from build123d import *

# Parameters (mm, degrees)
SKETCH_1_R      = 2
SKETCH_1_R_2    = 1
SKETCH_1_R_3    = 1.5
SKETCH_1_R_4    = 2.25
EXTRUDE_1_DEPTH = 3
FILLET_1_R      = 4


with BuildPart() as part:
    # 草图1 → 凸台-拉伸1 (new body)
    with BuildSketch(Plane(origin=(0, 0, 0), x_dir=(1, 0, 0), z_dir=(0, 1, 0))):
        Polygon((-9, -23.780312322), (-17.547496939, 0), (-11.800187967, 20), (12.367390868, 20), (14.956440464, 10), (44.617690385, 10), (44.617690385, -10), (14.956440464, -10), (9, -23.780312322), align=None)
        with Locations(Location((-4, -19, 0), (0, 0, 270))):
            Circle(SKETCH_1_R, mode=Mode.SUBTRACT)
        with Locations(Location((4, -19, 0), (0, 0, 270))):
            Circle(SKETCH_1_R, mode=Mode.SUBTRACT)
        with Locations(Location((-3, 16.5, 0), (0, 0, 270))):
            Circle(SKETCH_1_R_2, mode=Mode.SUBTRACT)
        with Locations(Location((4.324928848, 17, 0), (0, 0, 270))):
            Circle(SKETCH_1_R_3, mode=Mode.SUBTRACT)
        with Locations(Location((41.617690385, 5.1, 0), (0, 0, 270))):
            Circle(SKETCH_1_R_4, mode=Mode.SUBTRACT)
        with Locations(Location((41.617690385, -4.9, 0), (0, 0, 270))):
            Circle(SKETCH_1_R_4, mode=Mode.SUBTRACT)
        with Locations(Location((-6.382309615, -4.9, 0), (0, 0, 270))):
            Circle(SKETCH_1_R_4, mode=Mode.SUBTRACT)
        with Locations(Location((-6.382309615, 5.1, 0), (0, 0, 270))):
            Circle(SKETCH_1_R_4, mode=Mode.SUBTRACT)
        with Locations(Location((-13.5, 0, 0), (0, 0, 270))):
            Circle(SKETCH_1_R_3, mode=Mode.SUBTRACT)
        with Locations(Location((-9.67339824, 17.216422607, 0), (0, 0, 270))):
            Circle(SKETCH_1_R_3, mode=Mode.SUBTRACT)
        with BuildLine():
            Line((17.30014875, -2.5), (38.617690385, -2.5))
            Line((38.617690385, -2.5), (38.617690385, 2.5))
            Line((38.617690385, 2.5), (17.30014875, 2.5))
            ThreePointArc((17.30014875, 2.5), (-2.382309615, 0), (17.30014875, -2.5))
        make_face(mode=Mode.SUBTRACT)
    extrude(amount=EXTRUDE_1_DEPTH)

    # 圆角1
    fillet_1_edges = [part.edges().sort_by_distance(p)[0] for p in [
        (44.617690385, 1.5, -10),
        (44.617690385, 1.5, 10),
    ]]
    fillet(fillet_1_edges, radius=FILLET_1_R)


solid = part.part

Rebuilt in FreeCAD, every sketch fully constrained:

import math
import FreeCAD as App
import Part
import Sketcher
from FreeCAD import Vector


def edges_at(feature, points):
    """Names of the edges that pass closest to the given points."""
    edges = feature.Shape.Edges
    near = lambda p: min(range(len(edges)), key=lambda i: edges[i].distToShape(Part.Vertex(*p))[0])
    return sorted({f"Edge{near(p) + 1}" for p in points})


def add_polygon(sketch, points):
    """Adds a closed chain of lines whose ends are joined by coincident constraints."""
    first, n = sketch.GeometryCount, len(points)
    for a, b in zip(points, points[1:] + points[:1]):
        sketch.addGeometry(Part.LineSegment(App.Vector(*a, 0), App.Vector(*b, 0)), False)
    for i in range(n):
        sketch.addConstraint(Sketcher.Constraint("Coincident", first + i, 2, first + (i + 1) % n, 1))

doc = App.newDocument("Part")
params = doc.addObject("Spreadsheet::Sheet", "Params")
for row, (alias, value) in enumerate([
    ("sketch1_diameter", "4 mm"),
    ("sketch1_diameter2", "3 mm"),
    ("sketch1_diameter3", "2 mm"),
    ("sketch1_radius", "10 mm"),
    ("sketch1_diameter4", "4.5 mm"),
    ("pad1_length", "3 mm"),
    ("fillet_radius", "4 mm"),
], start=1):
    params.set(f"A{row}", alias)
    params.set(f"B{row}", "=" + value)
    params.setAlias(f"B{row}", alias)

body = doc.addObject("PartDesign::Body", "Body")

# Sketch on XZ plane
sketch1 = body.newObject("Sketcher::SketchObject", "Sketch")
sketch1.AttachmentSupport = (doc.getObject("XZ_Plane"), [""])
sketch1.MapMode = "FlatFace"
add_polygon(sketch1, [(-17.5, 0), (-9, 23.8), (9, 23.8), (15, 10), (44.6, 10), (44.6, -10), (15, -10), (12.4, -20), (-11.8, -20)])  # lines 0-8
sketch1.addGeometry(Part.Circle(Vector(41.6, 4.9, 0), Vector(0, 0, 1), 2.2), False)  # 9
sketch1.addGeometry(Part.Circle(Vector(4, 19, 0), Vector(0, 0, 1), 2), False)  # 10
sketch1.addGeometry(Part.Circle(Vector(-4, 19, 0), Vector(0, 0, 1), 2), False)  # 11
sketch1.addGeometry(Part.Circle(Vector(-6.4, 4.9, 0), Vector(0, 0, 1), 2.2), False)  # 12
sketch1.addGeometry(Part.Circle(Vector(41.6, -5.1, 0), Vector(0, 0, 1), 2.2), False)  # 13
sketch1.addGeometry(Part.ArcOfCircle(Part.Circle(Vector(7.6, 0, 0), Vector(0, 0, 1), 10), math.radians(14), math.radians(346)), False)  # 14
sketch1.addGeometry(Part.LineSegment(Vector(17.3, -2.5, 0), Vector(38.6, -2.5, 0)), False)  # 15
sketch1.addGeometry(Part.LineSegment(Vector(38.6, -2.5, 0), Vector(38.6, 2.5, 0)), False)  # 16
sketch1.addGeometry(Part.LineSegment(Vector(38.6, 2.5, 0), Vector(17.3, 2.5, 0)), False)  # 17
sketch1.addGeometry(Part.Circle(Vector(-13.5, 0, 0), Vector(0, 0, 1), 1.5), False)  # 18
sketch1.addGeometry(Part.Circle(Vector(-6.4, -5.1, 0), Vector(0, 0, 1), 2.2), False)  # 19
sketch1.addGeometry(Part.Circle(Vector(4.3, -17, 0), Vector(0, 0, 1), 1.5), False)  # 20
sketch1.addGeometry(Part.Circle(Vector(-3, -16.5, 0), Vector(0, 0, 1), 1), False)  # 21
sketch1.addGeometry(Part.Circle(Vector(-9.7, -17.2, 0), Vector(0, 0, 1), 1.5), False)  # 22
sketch1.addConstraint([
    Sketcher.Constraint("Coincident", 14, 2, 15, 1),
    Sketcher.Constraint("Coincident", 15, 2, 16, 1),
    Sketcher.Constraint("Coincident", 16, 2, 17, 1),
    Sketcher.Constraint("Coincident", 17, 2, 14, 1),
    Sketcher.Constraint("Horizontal", 1),
    Sketcher.Constraint("Horizontal", 3),
    Sketcher.Constraint("Vertical", 4),
    Sketcher.Constraint("Horizontal", 5),
    Sketcher.Constraint("Horizontal", 7),
    Sketcher.Constraint("Horizontal", 15),
    Sketcher.Constraint("Vertical", 16),
    Sketcher.Constraint("Horizontal", 17),
    Sketcher.Constraint("Equal", 10, 11),
    Sketcher.Constraint("Equal", 9, 12),
    Sketcher.Constraint("Equal", 12, 13),
    Sketcher.Constraint("Equal", 13, 19),
    Sketcher.Constraint("Equal", 18, 20),
    Sketcher.Constraint("Equal", 20, 22),
    Sketcher.Constraint("Symmetric", 10, 3, 11, 3, -2),
    Sketcher.Constraint("Symmetric", 2, 2, 5, 2, -1),
    Sketcher.Constraint("Symmetric", 14, 2, 17, 2, -1),
    Sketcher.Constraint("PointOnObject", 18, 3, -1),
    Sketcher.Constraint("PointOnObject", 8, 2, -1),
    Sketcher.Constraint("Horizontal", 9, 3, 12, 3),
    Sketcher.Constraint("Horizontal", 13, 3, 19, 3),
    Sketcher.Constraint("Vertical", 9, 3, 13, 3),
    Sketcher.Constraint("Vertical", 12, 3, 19, 3),
    Sketcher.Constraint("Diameter", 10, 4.0),
    Sketcher.Constraint("Diameter", 18, 3.0),
    Sketcher.Constraint("Diameter", 21, 2.0),
    Sketcher.Constraint("Radius", 14, 10.0),
    Sketcher.Constraint("Diameter", 9, 4.5),
    Sketcher.Constraint("DistanceX", 1, 1, 1, 2, 18.0),
    Sketcher.Constraint("DistanceY", 4, 2, 4, 1, 20.0),
    Sketcher.Constraint("DistanceY", 16, 1, 16, 2, 5.0),
    Sketcher.Constraint("DistanceX", -1, 1, 10, 3, 4.0),
    Sketcher.Constraint("DistanceY", -1, 1, 10, 3, 19.0),
    Sketcher.Constraint("DistanceY", 20, 3, -1, 1, 17.0),
    Sketcher.Constraint("DistanceX", 21, 3, -1, 1, 3.0),
    Sketcher.Constraint("DistanceX", 0, 2, -1, 1, 9.0),
    Sketcher.Constraint("DistanceY", 6, 2, -1, 1, 20.0),
    Sketcher.Constraint("DistanceX", 12, 3, 9, 3, 48.0),
    Sketcher.Constraint("DistanceY", 13, 3, 9, 3, 10.0),
    Sketcher.Constraint("DistanceX", 12, 3, 14, 3, 14.0),
    Sketcher.Constraint("DistanceX", 9, 3, 3, 2, 3.0),
    Sketcher.Constraint("DistanceX", 15, 2, 13, 3, 3.0),
    Sketcher.Constraint("DistanceY", -1, 1, 9, 3, 4.9),
    Sketcher.Constraint("DistanceX", 18, 3, -1, 1, 13.5),
    Sketcher.Constraint("DistanceY", 21, 3, -1, 1, 16.5),
    Sketcher.Constraint("DistanceX", 3, 1, 3, 2, 29.66125),
    Sketcher.Constraint("DistanceX", 7, 2, 7, 1, 24.167579),
    Sketcher.Constraint("DistanceX", 22, 3, -1, 1, 9.673398),
    Sketcher.Constraint("DistanceX", 14, 3, 6, 2, 4.7497),
    Sketcher.Constraint("DistanceX", 8, 2, 22, 3, 7.874099),
    Sketcher.Constraint("Distance", 8, 20.80941),
    Sketcher.Constraint("DistanceX", -1, 1, 20, 3, 4.324929),
    Sketcher.Constraint("Distance", 0, 25.269803),
    Sketcher.Constraint("DistanceY", 22, 3, -1, 1, 17.216423),
])
sketch1.setExpression("Constraints[36]", "Params.sketch1_diameter")
sketch1.setExpression("Constraints[37]", "Params.sketch1_diameter2")
sketch1.setExpression("Constraints[38]", "Params.sketch1_diameter3")
sketch1.setExpression("Constraints[39]", "Params.sketch1_radius")
sketch1.setExpression("Constraints[40]", "Params.sketch1_diameter4")
pad1 = body.newObject("PartDesign::Pad", "Pad")
pad1.Profile = sketch1
pad1.setExpression("Length", "Params.pad1_length")
pad1.Reversed = True
doc.recompute()

fillet = body.newObject("PartDesign::Fillet", "Fillet")
fillet.Base = (pad1, edges_at(pad1, [(44.618, 1.5, -10), (44.618, 1.5, 10)]))
fillet.setExpression("Radius", "Params.fillet_radius")

doc.recompute()
